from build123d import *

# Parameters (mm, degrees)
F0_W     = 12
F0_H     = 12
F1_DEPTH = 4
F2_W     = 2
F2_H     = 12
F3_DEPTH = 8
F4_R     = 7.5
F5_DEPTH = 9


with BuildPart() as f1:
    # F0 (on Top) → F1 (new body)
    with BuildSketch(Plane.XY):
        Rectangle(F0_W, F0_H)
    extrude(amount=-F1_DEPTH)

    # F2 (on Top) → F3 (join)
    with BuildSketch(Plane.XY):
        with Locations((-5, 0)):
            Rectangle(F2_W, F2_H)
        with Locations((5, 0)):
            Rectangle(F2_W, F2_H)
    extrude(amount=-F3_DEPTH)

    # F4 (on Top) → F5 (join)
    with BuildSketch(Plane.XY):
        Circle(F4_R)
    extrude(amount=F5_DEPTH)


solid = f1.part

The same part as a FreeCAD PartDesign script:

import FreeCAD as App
import Part
import Sketcher
from FreeCAD import Vector
Q = App.Units.Quantity

doc = App.newDocument("Part")
body = doc.addObject("PartDesign::Body", "Body")

# Sketch on XY plane
sketch1 = body.newObject("Sketcher::SketchObject", "Sketch")
sketch1.AttachmentSupport = (doc.getObject("XY_Plane"), [""])
sketch1.MapMode = "FlatFace"
sketch1.addGeometry(Part.LineSegment(Vector(-6, 6, 0), Vector(-6, -6, 0)), False)
sketch1.addGeometry(Part.LineSegment(Vector(-6, -6, 0), Vector(6, -6, 0)), False)
sketch1.addGeometry(Part.LineSegment(Vector(6, -6, 0), Vector(6, 6, 0)), False)
sketch1.addGeometry(Part.LineSegment(Vector(6, 6, 0), Vector(-6, 6, 0)), False)
sketch1.addConstraint(Sketcher.Constraint("Coincident", 0, 2, 1, 1))
sketch1.addConstraint(Sketcher.Constraint("Coincident", 1, 2, 2, 1))
sketch1.addConstraint(Sketcher.Constraint("Coincident", 2, 2, 3, 1))
sketch1.addConstraint(Sketcher.Constraint("Coincident", 3, 2, 0, 1))
sketch1.addConstraint(Sketcher.Constraint("Vertical", 0))
sketch1.addConstraint(Sketcher.Constraint("Horizontal", 1))
sketch1.addConstraint(Sketcher.Constraint("Vertical", 2))
sketch1.addConstraint(Sketcher.Constraint("Horizontal", 3))
sketch1.addConstraint(Sketcher.Constraint("Symmetric", 0, 2, 2, 2, -1, 1))
sketch1.addConstraint(Sketcher.Constraint("Equal", 3, 0))
sketch1.addConstraint(Sketcher.Constraint("DistanceX", 1, 1, 1, 2, Q("12 mm")))
pad1 = body.newObject("PartDesign::Pad", "Pad")
pad1.Profile = sketch1
pad1.Length = 4
pad1.Reversed = True

# Sketch on XY plane
sketch2 = body.newObject("Sketcher::SketchObject", "Sketch001")
sketch2.AttachmentSupport = (doc.getObject("XY_Plane"), [""])
sketch2.MapMode = "FlatFace"
sketch2.addGeometry(Part.LineSegment(Vector(-6, 6, 0), Vector(-6, -6, 0)), False)
sketch2.addGeometry(Part.LineSegment(Vector(-6, -6, 0), Vector(-4, -6, 0)), False)
sketch2.addGeometry(Part.LineSegment(Vector(-4, -6, 0), Vector(-4, 6, 0)), False)
sketch2.addGeometry(Part.LineSegment(Vector(-4, 6, 0), Vector(-6, 6, 0)), False)
sketch2.addGeometry(Part.LineSegment(Vector(4, 6, 0), Vector(4, -6, 0)), False)
sketch2.addGeometry(Part.LineSegment(Vector(4, -6, 0), Vector(6, -6, 0)), False)
sketch2.addGeometry(Part.LineSegment(Vector(6, -6, 0), Vector(6, 6, 0)), False)
sketch2.addGeometry(Part.LineSegment(Vector(6, 6, 0), Vector(4, 6, 0)), False)
sketch2.addConstraint(Sketcher.Constraint("Coincident", 0, 2, 1, 1))
sketch2.addConstraint(Sketcher.Constraint("Coincident", 1, 2, 2, 1))
sketch2.addConstraint(Sketcher.Constraint("Coincident", 2, 2, 3, 1))
sketch2.addConstraint(Sketcher.Constraint("Coincident", 3, 2, 0, 1))
sketch2.addConstraint(Sketcher.Constraint("Coincident", 4, 2, 5, 1))
sketch2.addConstraint(Sketcher.Constraint("Coincident", 5, 2, 6, 1))
sketch2.addConstraint(Sketcher.Constraint("Coincident", 6, 2, 7, 1))
sketch2.addConstraint(Sketcher.Constraint("Coincident", 7, 2, 4, 1))
sketch2.addConstraint(Sketcher.Constraint("Vertical", 0))
sketch2.addConstraint(Sketcher.Constraint("Horizontal", 1))
sketch2.addConstraint(Sketcher.Constraint("Vertical", 2))
sketch2.addConstraint(Sketcher.Constraint("Horizontal", 3))
sketch2.addConstraint(Sketcher.Constraint("Vertical", 4))
sketch2.addConstraint(Sketcher.Constraint("Horizontal", 5))
sketch2.addConstraint(Sketcher.Constraint("Vertical", 6))
sketch2.addConstraint(Sketcher.Constraint("Horizontal", 7))
sketch2.addConstraint(Sketcher.Constraint("Symmetric", 2, 2, 4, 2, -1, 1))
sketch2.addConstraint(Sketcher.Constraint("Symmetric", 0, 2, 6, 2, -1, 1))
sketch2.addConstraint(Sketcher.Constraint("Horizontal", 1, 2, 4, 2))
sketch2.addConstraint(Sketcher.Constraint("DistanceX", 1, 1, 1, 2, Q("2 mm")))
sketch2.addConstraint(Sketcher.Constraint("DistanceY", 0, 2, 0, 1, Q("12 mm")))
sketch2.addConstraint(Sketcher.Constraint("DistanceX", 0, 2, -1, 1, Q("6 mm")))
pad2 = body.newObject("PartDesign::Pad", "Pad001")
pad2.Profile = sketch2
pad2.Length = 8
pad2.Reversed = True

# Sketch on XY plane
sketch3 = body.newObject("Sketcher::SketchObject", "Sketch002")
sketch3.AttachmentSupport = (doc.getObject("XY_Plane"), [""])
sketch3.MapMode = "FlatFace"
sketch3.addGeometry(Part.Circle(Vector(0, 0, 0), Vector(0, 0, 1), 8), False)
sketch3.addConstraint(Sketcher.Constraint("Coincident", 0, 3, -1, 1))
sketch3.addConstraint(Sketcher.Constraint("Diameter", 0, Q("15 mm")))
pad3 = body.newObject("PartDesign::Pad", "Pad002")
pad3.Profile = sketch3
pad3.Length = 9

doc.recompute()
